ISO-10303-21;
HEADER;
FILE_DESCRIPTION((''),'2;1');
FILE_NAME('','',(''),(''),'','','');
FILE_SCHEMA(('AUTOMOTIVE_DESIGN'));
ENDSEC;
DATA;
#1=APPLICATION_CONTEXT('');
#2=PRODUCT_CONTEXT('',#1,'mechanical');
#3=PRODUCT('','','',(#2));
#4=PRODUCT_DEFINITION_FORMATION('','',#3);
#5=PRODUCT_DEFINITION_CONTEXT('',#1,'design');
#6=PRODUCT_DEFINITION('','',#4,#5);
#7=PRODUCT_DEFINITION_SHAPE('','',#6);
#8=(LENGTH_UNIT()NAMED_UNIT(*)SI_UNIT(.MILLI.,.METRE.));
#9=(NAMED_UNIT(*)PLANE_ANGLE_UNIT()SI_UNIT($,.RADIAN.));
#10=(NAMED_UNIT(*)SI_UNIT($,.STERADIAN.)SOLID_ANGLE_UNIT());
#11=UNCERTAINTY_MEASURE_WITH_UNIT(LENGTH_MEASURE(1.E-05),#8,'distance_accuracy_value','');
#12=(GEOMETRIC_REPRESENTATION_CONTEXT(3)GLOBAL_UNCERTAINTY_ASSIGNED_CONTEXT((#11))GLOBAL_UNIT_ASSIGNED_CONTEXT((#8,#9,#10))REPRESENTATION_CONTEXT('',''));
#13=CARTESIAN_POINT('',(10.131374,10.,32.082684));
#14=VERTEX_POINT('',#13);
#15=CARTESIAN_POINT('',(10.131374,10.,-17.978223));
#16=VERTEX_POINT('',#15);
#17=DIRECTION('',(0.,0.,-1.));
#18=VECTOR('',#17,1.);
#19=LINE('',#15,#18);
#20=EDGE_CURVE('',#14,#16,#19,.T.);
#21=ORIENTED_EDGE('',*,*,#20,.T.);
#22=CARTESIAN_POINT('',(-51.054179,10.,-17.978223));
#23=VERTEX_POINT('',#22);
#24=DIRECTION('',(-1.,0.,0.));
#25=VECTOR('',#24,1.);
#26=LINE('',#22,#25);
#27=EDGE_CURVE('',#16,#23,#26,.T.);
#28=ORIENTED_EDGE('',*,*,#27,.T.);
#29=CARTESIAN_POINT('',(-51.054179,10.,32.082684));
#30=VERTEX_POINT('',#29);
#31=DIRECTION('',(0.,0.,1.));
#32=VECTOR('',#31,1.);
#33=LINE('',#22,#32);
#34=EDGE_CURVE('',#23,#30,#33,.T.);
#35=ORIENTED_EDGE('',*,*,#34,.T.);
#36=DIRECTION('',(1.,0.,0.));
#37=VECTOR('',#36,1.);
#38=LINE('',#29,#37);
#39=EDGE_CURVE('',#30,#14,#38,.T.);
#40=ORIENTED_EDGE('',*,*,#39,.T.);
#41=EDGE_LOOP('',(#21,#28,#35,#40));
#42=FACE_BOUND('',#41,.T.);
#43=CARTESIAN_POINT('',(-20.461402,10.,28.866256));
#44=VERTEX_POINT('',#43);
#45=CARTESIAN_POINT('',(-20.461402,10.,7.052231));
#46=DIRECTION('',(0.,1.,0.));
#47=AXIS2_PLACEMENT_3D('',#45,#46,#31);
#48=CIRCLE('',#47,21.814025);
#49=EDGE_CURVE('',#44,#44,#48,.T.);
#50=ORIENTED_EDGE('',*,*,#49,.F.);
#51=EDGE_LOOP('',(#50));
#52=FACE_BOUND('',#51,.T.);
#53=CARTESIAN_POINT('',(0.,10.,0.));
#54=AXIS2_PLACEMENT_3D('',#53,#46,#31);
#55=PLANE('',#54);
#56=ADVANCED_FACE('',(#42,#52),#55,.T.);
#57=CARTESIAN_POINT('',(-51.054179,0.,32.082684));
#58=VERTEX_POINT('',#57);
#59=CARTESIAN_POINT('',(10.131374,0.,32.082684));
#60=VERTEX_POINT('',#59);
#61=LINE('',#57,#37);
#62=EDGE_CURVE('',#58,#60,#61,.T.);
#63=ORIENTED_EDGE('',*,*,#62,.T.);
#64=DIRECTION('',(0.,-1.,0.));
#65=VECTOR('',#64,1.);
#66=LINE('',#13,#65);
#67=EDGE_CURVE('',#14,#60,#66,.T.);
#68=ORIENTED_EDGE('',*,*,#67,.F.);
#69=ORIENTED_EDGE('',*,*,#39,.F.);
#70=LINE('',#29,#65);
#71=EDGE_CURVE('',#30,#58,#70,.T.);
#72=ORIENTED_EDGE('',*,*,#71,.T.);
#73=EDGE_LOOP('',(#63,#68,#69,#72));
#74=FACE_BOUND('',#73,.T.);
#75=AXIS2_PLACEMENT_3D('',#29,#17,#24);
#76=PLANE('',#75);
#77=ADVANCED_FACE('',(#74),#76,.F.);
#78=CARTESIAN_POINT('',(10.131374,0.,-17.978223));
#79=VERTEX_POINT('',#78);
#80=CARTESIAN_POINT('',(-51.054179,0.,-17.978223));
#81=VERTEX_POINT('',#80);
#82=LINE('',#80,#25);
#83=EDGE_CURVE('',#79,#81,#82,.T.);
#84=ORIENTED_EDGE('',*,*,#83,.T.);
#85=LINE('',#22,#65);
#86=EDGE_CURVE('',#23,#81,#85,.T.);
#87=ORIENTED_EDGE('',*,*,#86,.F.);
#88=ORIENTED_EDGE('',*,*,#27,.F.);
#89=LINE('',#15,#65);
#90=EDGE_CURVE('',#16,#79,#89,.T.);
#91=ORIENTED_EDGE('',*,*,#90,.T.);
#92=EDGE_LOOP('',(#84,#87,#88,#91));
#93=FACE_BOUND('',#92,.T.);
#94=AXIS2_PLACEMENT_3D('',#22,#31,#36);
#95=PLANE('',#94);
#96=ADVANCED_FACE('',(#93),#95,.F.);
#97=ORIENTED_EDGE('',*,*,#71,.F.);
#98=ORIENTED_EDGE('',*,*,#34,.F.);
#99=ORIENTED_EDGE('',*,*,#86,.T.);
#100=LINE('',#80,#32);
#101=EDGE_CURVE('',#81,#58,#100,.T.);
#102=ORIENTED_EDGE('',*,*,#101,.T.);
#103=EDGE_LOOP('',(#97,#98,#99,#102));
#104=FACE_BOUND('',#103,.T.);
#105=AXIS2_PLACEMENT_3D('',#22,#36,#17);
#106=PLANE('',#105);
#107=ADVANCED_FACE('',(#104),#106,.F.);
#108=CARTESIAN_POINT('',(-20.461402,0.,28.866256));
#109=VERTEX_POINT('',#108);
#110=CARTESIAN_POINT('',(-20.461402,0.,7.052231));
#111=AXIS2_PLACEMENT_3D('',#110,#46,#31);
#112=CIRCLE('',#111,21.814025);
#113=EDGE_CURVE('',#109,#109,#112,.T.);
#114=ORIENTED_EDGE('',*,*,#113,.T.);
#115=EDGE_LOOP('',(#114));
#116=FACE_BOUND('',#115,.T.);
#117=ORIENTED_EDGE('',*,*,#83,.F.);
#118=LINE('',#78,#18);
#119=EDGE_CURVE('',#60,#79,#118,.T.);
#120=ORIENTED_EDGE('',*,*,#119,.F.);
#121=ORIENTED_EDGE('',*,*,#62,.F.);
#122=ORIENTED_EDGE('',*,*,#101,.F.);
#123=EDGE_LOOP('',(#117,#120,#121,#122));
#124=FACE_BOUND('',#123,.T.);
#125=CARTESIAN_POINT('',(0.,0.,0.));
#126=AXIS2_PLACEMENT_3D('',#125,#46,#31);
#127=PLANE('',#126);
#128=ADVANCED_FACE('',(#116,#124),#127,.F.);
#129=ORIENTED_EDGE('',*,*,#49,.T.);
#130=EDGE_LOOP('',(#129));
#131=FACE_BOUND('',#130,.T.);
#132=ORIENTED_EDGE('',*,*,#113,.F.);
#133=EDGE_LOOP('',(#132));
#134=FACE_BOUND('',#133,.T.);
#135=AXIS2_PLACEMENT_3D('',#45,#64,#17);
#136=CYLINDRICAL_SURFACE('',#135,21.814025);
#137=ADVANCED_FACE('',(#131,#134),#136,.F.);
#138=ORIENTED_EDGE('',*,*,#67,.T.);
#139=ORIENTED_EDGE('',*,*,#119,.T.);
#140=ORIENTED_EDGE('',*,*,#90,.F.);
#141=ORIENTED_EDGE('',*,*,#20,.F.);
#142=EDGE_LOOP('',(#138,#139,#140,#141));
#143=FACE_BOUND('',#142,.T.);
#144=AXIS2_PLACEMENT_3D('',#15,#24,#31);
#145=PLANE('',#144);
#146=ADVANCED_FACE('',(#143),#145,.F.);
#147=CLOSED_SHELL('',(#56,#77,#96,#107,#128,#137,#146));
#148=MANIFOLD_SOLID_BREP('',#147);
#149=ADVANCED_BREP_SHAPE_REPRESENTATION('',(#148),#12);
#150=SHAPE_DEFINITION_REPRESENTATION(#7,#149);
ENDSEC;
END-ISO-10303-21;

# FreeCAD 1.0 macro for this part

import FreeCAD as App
import Part
import Sketcher
from FreeCAD import Vector
Q = App.Units.Quantity

doc = App.newDocument("Part")
params = doc.addObject("Spreadsheet::Sheet", "Params")
for row, (alias, value) in enumerate([
    ("pad1_length", "10 mm"),
], start=1):
    params.set(f"A{row}", alias)
    params.set(f"B{row}", "=" + value)
    params.setAlias(f"B{row}", alias)

body = doc.addObject("PartDesign::Body", "Body")

# Sketch on XZ plane
sketch1 = doc.addObject("Sketcher::SketchObject", "Sketch")
body.addObject(sketch1)
sketch1.AttachmentSupport = (doc.XZ_Plane, [""])
sketch1.MapMode = "FlatFace"
sketch1.addGeometry(Part.LineSegment(Vector(-51, -18, 0), Vector(-51, 32, 0)), False)
sketch1.addGeometry(Part.LineSegment(Vector(-51, 32, 0), Vector(10, 32, 0)), False)
sketch1.addGeometry(Part.LineSegment(Vector(10, 32, 0), Vector(10, -18, 0)), False)
sketch1.addGeometry(Part.LineSegment(Vector(10, -18, 0), Vector(-51, -18, 0)), False)
sketch1.addGeometry(Part.Circle(Vector(-20, 7, 0), Vector(0, 0, 1), 22), False)
sketch1.addConstraint(Sketcher.Constraint("Coincident", 0, 2, 1, 1))
sketch1.addConstraint(Sketcher.Constraint("Coincident", 1, 2, 2, 1))
sketch1.addConstraint(Sketcher.Constraint("Coincident", 2, 2, 3, 1))
sketch1.addConstraint(Sketcher.Constraint("Coincident", 3, 2, 0, 1))
sketch1.addConstraint(Sketcher.Constraint("Vertical", 0))
sketch1.addConstraint(Sketcher.Constraint("Horizontal", 1))
sketch1.addConstraint(Sketcher.Constraint("Vertical", 2))
sketch1.addConstraint(Sketcher.Constraint("Horizontal", 3))
sketch1.addConstraint(Sketcher.Constraint("Diameter", 4, Q("43.628051 mm")))
sketch1.addConstraint(Sketcher.Constraint("DistanceX", 1, 1, 1, 2, Q("61.185553 mm")))
sketch1.addConstraint(Sketcher.Constraint("DistanceY", 0, 1, 0, 2, Q("50.060907 mm")))
sketch1.addConstraint(Sketcher.Constraint("DistanceY", -1, 1, 4, 3, Q("7.052231 mm")))
sketch1.addConstraint(Sketcher.Constraint("DistanceX", 0, 2, -1, 1, Q("51.054179 mm")))
sketch1.addConstraint(Sketcher.Constraint("DistanceX", 4, 3, -1, 1, Q("20.461402 mm")))
sketch1.addConstraint(Sketcher.Constraint("DistanceY", -1, 1, 0, 2, Q("32.082684 mm")))
pad1 = doc.addObject("PartDesign::Pad", "Pad")
body.addObject(pad1)
pad1.Profile = sketch1
pad1.setExpression("Length", "Params.pad1_length")
pad1.Reversed = True

doc.recompute()
